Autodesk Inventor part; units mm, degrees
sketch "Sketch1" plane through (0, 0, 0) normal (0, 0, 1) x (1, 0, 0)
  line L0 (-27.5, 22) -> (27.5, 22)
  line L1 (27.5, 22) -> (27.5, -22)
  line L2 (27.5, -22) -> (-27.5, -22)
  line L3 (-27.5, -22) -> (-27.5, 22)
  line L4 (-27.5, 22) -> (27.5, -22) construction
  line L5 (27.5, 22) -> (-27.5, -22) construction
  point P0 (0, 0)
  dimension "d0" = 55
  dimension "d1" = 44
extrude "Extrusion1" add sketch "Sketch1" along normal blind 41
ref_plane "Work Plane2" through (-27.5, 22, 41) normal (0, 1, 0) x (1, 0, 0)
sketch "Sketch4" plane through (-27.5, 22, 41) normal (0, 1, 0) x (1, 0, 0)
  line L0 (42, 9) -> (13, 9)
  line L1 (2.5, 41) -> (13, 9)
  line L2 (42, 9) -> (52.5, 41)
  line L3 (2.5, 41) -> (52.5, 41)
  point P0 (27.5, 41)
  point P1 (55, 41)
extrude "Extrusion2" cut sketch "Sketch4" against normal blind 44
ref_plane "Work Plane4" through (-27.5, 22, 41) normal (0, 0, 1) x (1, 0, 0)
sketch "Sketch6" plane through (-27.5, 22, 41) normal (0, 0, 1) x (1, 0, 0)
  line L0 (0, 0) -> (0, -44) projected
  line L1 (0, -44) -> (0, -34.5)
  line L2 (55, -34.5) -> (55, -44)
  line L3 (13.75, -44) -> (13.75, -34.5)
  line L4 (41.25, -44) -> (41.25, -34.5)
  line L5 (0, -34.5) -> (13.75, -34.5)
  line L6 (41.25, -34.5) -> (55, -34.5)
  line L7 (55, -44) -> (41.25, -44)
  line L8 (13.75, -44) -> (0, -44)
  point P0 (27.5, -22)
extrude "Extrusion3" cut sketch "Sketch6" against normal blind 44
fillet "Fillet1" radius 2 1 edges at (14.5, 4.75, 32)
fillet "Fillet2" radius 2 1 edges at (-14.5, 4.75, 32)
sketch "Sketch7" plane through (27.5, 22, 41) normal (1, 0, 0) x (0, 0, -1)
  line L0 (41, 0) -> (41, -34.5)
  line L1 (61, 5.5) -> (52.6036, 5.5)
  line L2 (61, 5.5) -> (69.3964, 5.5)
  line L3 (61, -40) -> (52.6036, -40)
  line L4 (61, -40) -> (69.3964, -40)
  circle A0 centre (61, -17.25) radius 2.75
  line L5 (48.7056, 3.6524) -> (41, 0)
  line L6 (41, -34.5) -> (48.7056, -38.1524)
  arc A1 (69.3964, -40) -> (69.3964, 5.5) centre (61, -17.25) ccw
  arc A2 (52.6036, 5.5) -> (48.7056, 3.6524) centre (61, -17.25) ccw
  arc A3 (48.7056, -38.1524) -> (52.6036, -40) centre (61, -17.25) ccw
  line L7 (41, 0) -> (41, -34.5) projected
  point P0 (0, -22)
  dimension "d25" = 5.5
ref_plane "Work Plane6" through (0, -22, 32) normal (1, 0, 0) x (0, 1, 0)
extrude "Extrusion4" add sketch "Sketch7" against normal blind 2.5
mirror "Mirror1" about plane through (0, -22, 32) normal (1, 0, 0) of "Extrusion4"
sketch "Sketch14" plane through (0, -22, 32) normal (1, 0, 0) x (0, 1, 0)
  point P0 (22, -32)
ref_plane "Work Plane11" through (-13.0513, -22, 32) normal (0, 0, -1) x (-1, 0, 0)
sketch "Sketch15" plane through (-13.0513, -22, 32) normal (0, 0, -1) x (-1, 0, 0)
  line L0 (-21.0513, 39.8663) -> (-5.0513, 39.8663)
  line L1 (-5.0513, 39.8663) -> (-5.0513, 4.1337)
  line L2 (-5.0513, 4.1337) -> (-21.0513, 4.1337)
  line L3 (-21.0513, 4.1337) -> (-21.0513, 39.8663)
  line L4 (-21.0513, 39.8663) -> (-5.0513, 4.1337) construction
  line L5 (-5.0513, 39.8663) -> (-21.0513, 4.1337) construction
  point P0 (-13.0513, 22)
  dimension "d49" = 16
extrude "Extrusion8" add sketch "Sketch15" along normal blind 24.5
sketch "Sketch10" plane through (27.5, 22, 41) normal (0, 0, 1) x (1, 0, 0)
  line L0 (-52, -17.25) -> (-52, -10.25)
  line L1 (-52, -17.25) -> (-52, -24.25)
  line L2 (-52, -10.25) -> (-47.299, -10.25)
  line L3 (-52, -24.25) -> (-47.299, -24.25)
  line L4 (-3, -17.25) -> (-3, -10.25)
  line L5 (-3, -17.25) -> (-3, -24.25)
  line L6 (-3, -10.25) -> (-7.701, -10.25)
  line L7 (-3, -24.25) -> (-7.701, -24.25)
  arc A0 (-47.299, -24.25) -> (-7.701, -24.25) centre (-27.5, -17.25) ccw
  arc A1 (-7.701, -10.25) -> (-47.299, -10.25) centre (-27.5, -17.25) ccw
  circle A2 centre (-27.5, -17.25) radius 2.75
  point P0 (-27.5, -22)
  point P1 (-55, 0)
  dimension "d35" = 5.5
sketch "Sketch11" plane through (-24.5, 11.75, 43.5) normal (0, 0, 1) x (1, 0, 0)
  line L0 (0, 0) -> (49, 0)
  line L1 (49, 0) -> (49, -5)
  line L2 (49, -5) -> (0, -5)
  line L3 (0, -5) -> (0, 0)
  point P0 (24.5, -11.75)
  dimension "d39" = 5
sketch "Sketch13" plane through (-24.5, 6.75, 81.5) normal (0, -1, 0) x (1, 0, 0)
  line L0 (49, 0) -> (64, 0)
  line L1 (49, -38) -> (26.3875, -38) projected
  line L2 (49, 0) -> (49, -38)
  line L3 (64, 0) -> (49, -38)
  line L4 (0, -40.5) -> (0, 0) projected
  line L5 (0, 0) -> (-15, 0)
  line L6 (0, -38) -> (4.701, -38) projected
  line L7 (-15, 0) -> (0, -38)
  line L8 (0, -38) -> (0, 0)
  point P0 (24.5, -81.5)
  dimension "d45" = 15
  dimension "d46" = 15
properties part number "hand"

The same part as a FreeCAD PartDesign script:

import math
import FreeCAD as App
import Part
import Sketcher
from FreeCAD import Vector
Q = App.Units.Quantity


def edges_at(feature, points):
    """Names of the edges that pass closest to the given points."""
    edges = feature.Shape.Edges
    near = lambda p: min(range(len(edges)), key=lambda i: edges[i].distToShape(Part.Vertex(*p))[0])
    return sorted({f"Edge{near(p) + 1}" for p in points})

doc = App.newDocument("Part")
params = doc.addObject("Spreadsheet::Sheet", "Params")
for row, (alias, value) in enumerate([
    ("sketch1_width", "55 mm"),
    ("sketch1_height", "44 mm"),
    ("pad1_length", "41 mm"),
    ("sketch2_width", "29 mm"),
    ("sketch2_width2", "50 mm"),
    ("pocket1_length", "44 mm"),
    ("sketch3_height", "9.5 mm"),
    ("sketch3_width", "13.75 mm"),
    ("pocket2_length", "44 mm"),
    ("fillet_radius", "2 mm"),
    ("fillet2_radius", "2 mm"),
    ("sketch4_diameter", "5.5 mm"),
    ("sketch4_radius", "24.25 mm"),
    ("sketch4_width", "34.5 mm"),
    ("pad2_length", "2.5 mm"),
    ("sketch5_width", "16 mm"),
    ("pad3_length", "24.5 mm"),
], start=1):
    params.set(f"A{row}", alias)
    params.set(f"B{row}", "=" + value)
    params.setAlias(f"B{row}", alias)

body = doc.addObject("PartDesign::Body", "Body")

# Sketch on XY plane
sketch1 = body.newObject("Sketcher::SketchObject", "Sketch")
sketch1.AttachmentSupport = (doc.getObject("XY_Plane"), [""])
sketch1.MapMode = "FlatFace"
sketch1.addGeometry([
    Part.LineSegment(Vector(28, 22, 0), Vector(-28, 22, 0)),
    Part.LineSegment(Vector(-28, 22, 0), Vector(-28, -22, 0)),
    Part.LineSegment(Vector(-28, -22, 0), Vector(28, -22, 0)),
    Part.LineSegment(Vector(28, -22, 0), Vector(28, 22, 0)),
], False)
sketch1.addConstraint([
    Sketcher.Constraint("Coincident", 0, 2, 1, 1),
    Sketcher.Constraint("Coincident", 1, 2, 2, 1),
    Sketcher.Constraint("Coincident", 2, 2, 3, 1),
    Sketcher.Constraint("Coincident", 3, 2, 0, 1),
    Sketcher.Constraint("Horizontal", 0),
    Sketcher.Constraint("Vertical", 1),
    Sketcher.Constraint("Horizontal", 2),
    Sketcher.Constraint("Vertical", 3),
    Sketcher.Constraint("Symmetric", 0, 2, 2, 2, -1, 1),
    Sketcher.Constraint("DistanceX", 0, 2, 0, 1, 55.0),
    Sketcher.Constraint("DistanceY", 1, 2, 1, 1, 44.0),
])
sketch1.setExpression("Constraints[9]", "Params.sketch1_width")
sketch1.setExpression("Constraints[10]", "Params.sketch1_height")
pad1 = body.newObject("PartDesign::Pad", "Pad")
pad1.Profile = sketch1
pad1.setExpression("Length", "Params.pad1_length")

# Sketch on XZ plane
sketch2 = body.newObject("Sketcher::SketchObject", "Sketch001")
sketch2.AttachmentSupport = (doc.getObject("XZ_Plane"), [""])
sketch2.MapMode = "FlatFace"
sketch2.AttachmentOffset = App.Placement(Vector(0, 0, -22), App.Rotation())
sketch2.addGeometry([
    Part.LineSegment(Vector(-14, 32, 0), Vector(14, 32, 0)),
    Part.LineSegment(Vector(14, 32, 0), Vector(25, 0, 0)),
    Part.LineSegment(Vector(25, 0, 0), Vector(-25, 0, 0)),
    Part.LineSegment(Vector(-25, 0, 0), Vector(-14, 32, 0)),
], False)
sketch2.addConstraint([
    Sketcher.Constraint("Coincident", 0, 2, 1, 1),
    Sketcher.Constraint("Coincident", 1, 2, 2, 1),
    Sketcher.Constraint("Coincident", 2, 2, 3, 1),
    Sketcher.Constraint("Coincident", 3, 2, 0, 1),
    Sketcher.Constraint("Horizontal", 0),
    Sketcher.Constraint("Horizontal", 2),
    Sketcher.Constraint("Symmetric", 1, 2, 2, 2, -1, 1),
    Sketcher.Constraint("Equal", 1, 3),
    Sketcher.Constraint("DistanceX", 0, 1, 0, 2, 29.0),
    Sketcher.Constraint("DistanceX", 2, 2, 2, 1, 50.0),
    Sketcher.Constraint("DistanceY", -1, 1, 0, 2, 32.0),
])
sketch2.setExpression("Constraints[8]", "Params.sketch2_width")
sketch2.setExpression("Constraints[9]", "Params.sketch2_width2")
pocket1 = body.newObject("PartDesign::Pocket", "Pocket")
pocket1.Profile = sketch2
pocket1.setExpression("Length", "Params.pocket1_length")
pocket1.Reversed = True

# Sketch on XY plane
sketch3 = body.newObject("Sketcher::SketchObject", "Sketch002")
sketch3.AttachmentSupport = (doc.getObject("XY_Plane"), [""])
sketch3.MapMode = "FlatFace"
sketch3.AttachmentOffset = App.Placement(Vector(0, 0, 41), App.Rotation())
sketch3.addGeometry([
    Part.LineSegment(Vector(-14, -12, 0), Vector(-28, -12, 0)),  # 0
    Part.LineSegment(Vector(-28, -12, 0), Vector(-28, -22, 0)),  # 1
    Part.LineSegment(Vector(-28, -22, 0), Vector(-14, -22, 0)),  # 2
    Part.LineSegment(Vector(-14, -22, 0), Vector(-14, -12, 0)),  # 3
    Part.LineSegment(Vector(28, -22, 0), Vector(28, -12, 0)),  # 4
    Part.LineSegment(Vector(28, -12, 0), Vector(14, -12, 0)),  # 5
    Part.LineSegment(Vector(14, -12, 0), Vector(14, -22, 0)),  # 6
    Part.LineSegment(Vector(14, -22, 0), Vector(28, -22, 0)),  # 7
], False)
sketch3.addConstraint([
    Sketcher.Constraint("Coincident", 0, 2, 1, 1),
    Sketcher.Constraint("Coincident", 1, 2, 2, 1),
    Sketcher.Constraint("Coincident", 2, 2, 3, 1),
    Sketcher.Constraint("Coincident", 3, 2, 0, 1),
    Sketcher.Constraint("Coincident", 4, 2, 5, 1),
    Sketcher.Constraint("Coincident", 5, 2, 6, 1),
    Sketcher.Constraint("Coincident", 6, 2, 7, 1),
    Sketcher.Constraint("Coincident", 7, 2, 4, 1),
    Sketcher.Constraint("Horizontal", 0),
    Sketcher.Constraint("Vertical", 1),
    Sketcher.Constraint("Horizontal", 2),
    Sketcher.Constraint("Vertical", 3),
    Sketcher.Constraint("Vertical", 4),
    Sketcher.Constraint("Horizontal", 5),
    Sketcher.Constraint("Vertical", 6),
    Sketcher.Constraint("Horizontal", 7),
    Sketcher.Constraint("Symmetric", 0, 2, 4, 2, -2),
    Sketcher.Constraint("Symmetric", 2, 2, 6, 2, -2),
    Sketcher.Constraint("DistanceY", 1, 2, 1, 1, 9.5),
    Sketcher.Constraint("DistanceY", 1, 2, -1, 1, 22.0),
    Sketcher.Constraint("DistanceX", 0, 2, 4, 2, 55.0),
    Sketcher.Constraint("DistanceX", 0, 2, 0, 1, 13.75),
])
sketch3.setExpression("Constraints[18]", "Params.sketch3_height")
sketch3.setExpression("Constraints[21]", "Params.sketch3_width")
pocket2 = body.newObject("PartDesign::Pocket", "Pocket001")
pocket2.Profile = sketch3
pocket2.setExpression("Length", "Params.pocket2_length")
doc.recompute()

fillet = body.newObject("PartDesign::Fillet", "Fillet")
fillet.Base = (pocket2, edges_at(pocket2, [(14.5, 4.75, 32)]))
fillet.setExpression("Radius", "Params.fillet_radius")
doc.recompute()

fillet2 = body.newObject("PartDesign::Fillet", "Fillet001")
fillet2.Base = (fillet, edges_at(fillet, [(-14.5, 4.75, 32)]))
fillet2.setExpression("Radius", "Params.fillet2_radius")

# Sketch on YZ plane
sketch4 = body.newObject("Sketcher::SketchObject", "Sketch003")
sketch4.AttachmentSupport = (doc.getObject("YZ_Plane"), [""])
sketch4.MapMode = "FlatFace"
sketch4.AttachmentOffset = App.Placement(Vector(0, 0, 27.5), App.Rotation())
sketch4.addGeometry([
    Part.LineSegment(Vector(25.7, -7.7, 0), Vector(22, 0, 0)),  # 0
    Part.LineSegment(Vector(22, 0, 0), Vector(-12.5, 0, 0)),  # 1
    Part.LineSegment(Vector(-12.5, 0, 0), Vector(-16.2, -7.7, 0)),  # 2
    Part.ArcOfCircle(Part.Circle(Vector(4.7, -20, 0), Vector(0, 0, 1), 24.2), math.radians(149.54), math.radians(159.74)),  # 3
    Part.LineSegment(Vector(-18, -11.6, 0), Vector(-18, -28.4, 0)),  # 4
    Part.ArcOfCircle(Part.Circle(Vector(4.8, -20, 0), Vector(0, 0, 1), 24.2), math.radians(-160), math.radians(-20)),  # 5
    Part.LineSegment(Vector(27.5, -28.4, 0), Vector(27.5, -11.6, 0)),  # 6
    Part.ArcOfCircle(Part.Circle(Vector(4.7, -20, 0), Vector(0, 0, 1), 24.3), math.radians(20.26), math.radians(30.46)),  # 7
    Part.Circle(Vector(4.8, -20, 0), Vector(0, 0, 1), 2.8),  # 8
], False)
sketch4.addConstraint([
    Sketcher.Constraint("Coincident", 0, 2, 1, 1),
    Sketcher.Constraint("Coincident", 1, 2, 2, 1),
    Sketcher.Constraint("Coincident", 2, 2, 3, 1),
    Sketcher.Constraint("Coincident", 3, 2, 4, 1),
    Sketcher.Constraint("Coincident", 4, 2, 5, 1),
    Sketcher.Constraint("Coincident", 5, 2, 6, 1),
    Sketcher.Constraint("Coincident", 6, 2, 7, 1),
    Sketcher.Constraint("Coincident", 7, 2, 0, 1),
    Sketcher.Constraint("Horizontal", 1),
    Sketcher.Constraint("Vertical", 4),
    Sketcher.Constraint("Vertical", 6),
    Sketcher.Constraint("Coincident", 8, 3, 5, 3),
    Sketcher.Constraint("PointOnObject", 0, 2, -1),
    Sketcher.Constraint("Horizontal", 4, 2, 5, 2),
    Sketcher.Constraint("Horizontal", 3, 2, 6, 2),
    Sketcher.Constraint("Horizontal", 2, 2, 7, 2),
    Sketcher.Constraint("Vertical", 3, 3, 7, 3),
    Sketcher.Constraint("Equal", 0, 2),
    Sketcher.Constraint("Diameter", 8, 5.5),
    Sketcher.Constraint("DistanceX", 3, 2, 1, 2, 5.5),
    Sketcher.Constraint("DistanceX", 0, 2, 5, 2, 5.5),
    Sketcher.Constraint("Radius", 5, 24.25),
    Sketcher.Constraint("DistanceX", 1, 2, 1, 1, 34.5),
    Sketcher.Constraint("DistanceY", 5, 3, -1, 1, 20.0),
    Sketcher.Constraint("DistanceX", -1, 1, 0, 2, 22.0),
    Sketcher.Constraint("Angle", 0, Q("115.3606 deg")),
    Sketcher.Constraint("Radius", 3, 24.2485),
    Sketcher.Constraint("Radius", 7, 24.2515),
    Sketcher.Constraint("DistanceY", 4, 2, 4, 1, 16.7928),
])
sketch4.setExpression("Constraints[18]", "Params.sketch4_diameter")
sketch4.setExpression("Constraints[21]", "Params.sketch4_radius")
sketch4.setExpression("Constraints[22]", "Params.sketch4_width")
pad2 = body.newObject("PartDesign::Pad", "Pad001")
pad2.Profile = sketch4
pad2.setExpression("Length", "Params.pad2_length")
pad2.Reversed = True
doc.recompute()

mirrored = body.newObject("PartDesign::Mirrored", "Mirrored")
mirrored.Originals = [pad2]
mirrored.MirrorPlane = (doc.getObject("YZ_Plane"), [""])
body.Tip = mirrored

# Sketch on XY plane
sketch5 = body.newObject("Sketcher::SketchObject", "Sketch004")
sketch5.AttachmentSupport = (doc.getObject("XY_Plane"), [""])
sketch5.MapMode = "FlatFace"
sketch5.AttachmentOffset = App.Placement(Vector(0, 0, 32), App.Rotation())
sketch5.addGeometry([
    Part.LineSegment(Vector(-8, 18, 0), Vector(8, 18, 0)),
    Part.LineSegment(Vector(8, 18, 0), Vector(8, -18, 0)),
    Part.LineSegment(Vector(8, -18, 0), Vector(-8, -18, 0)),
    Part.LineSegment(Vector(-8, -18, 0), Vector(-8, 18, 0)),
], False)
sketch5.addConstraint([
    Sketcher.Constraint("Coincident", 0, 2, 1, 1),
    Sketcher.Constraint("Coincident", 1, 2, 2, 1),
    Sketcher.Constraint("Coincident", 2, 2, 3, 1),
    Sketcher.Constraint("Coincident", 3, 2, 0, 1),
    Sketcher.Constraint("Horizontal", 0),
    Sketcher.Constraint("Vertical", 1),
    Sketcher.Constraint("Horizontal", 2),
    Sketcher.Constraint("Vertical", 3),
    Sketcher.Constraint("Symmetric", 0, 2, 2, 2, -1, 1),
    Sketcher.Constraint("DistanceX", 0, 1, 0, 2, 16.0),
    Sketcher.Constraint("DistanceY", 1, 2, 1, 1, 35.7326),
])
sketch5.setExpression("Constraints[9]", "Params.sketch5_width")
pad3 = body.newObject("PartDesign::Pad", "Pad002")
pad3.Profile = sketch5
pad3.setExpression("Length", "Params.pad3_length")
pad3.Reversed = True

doc.recompute()
